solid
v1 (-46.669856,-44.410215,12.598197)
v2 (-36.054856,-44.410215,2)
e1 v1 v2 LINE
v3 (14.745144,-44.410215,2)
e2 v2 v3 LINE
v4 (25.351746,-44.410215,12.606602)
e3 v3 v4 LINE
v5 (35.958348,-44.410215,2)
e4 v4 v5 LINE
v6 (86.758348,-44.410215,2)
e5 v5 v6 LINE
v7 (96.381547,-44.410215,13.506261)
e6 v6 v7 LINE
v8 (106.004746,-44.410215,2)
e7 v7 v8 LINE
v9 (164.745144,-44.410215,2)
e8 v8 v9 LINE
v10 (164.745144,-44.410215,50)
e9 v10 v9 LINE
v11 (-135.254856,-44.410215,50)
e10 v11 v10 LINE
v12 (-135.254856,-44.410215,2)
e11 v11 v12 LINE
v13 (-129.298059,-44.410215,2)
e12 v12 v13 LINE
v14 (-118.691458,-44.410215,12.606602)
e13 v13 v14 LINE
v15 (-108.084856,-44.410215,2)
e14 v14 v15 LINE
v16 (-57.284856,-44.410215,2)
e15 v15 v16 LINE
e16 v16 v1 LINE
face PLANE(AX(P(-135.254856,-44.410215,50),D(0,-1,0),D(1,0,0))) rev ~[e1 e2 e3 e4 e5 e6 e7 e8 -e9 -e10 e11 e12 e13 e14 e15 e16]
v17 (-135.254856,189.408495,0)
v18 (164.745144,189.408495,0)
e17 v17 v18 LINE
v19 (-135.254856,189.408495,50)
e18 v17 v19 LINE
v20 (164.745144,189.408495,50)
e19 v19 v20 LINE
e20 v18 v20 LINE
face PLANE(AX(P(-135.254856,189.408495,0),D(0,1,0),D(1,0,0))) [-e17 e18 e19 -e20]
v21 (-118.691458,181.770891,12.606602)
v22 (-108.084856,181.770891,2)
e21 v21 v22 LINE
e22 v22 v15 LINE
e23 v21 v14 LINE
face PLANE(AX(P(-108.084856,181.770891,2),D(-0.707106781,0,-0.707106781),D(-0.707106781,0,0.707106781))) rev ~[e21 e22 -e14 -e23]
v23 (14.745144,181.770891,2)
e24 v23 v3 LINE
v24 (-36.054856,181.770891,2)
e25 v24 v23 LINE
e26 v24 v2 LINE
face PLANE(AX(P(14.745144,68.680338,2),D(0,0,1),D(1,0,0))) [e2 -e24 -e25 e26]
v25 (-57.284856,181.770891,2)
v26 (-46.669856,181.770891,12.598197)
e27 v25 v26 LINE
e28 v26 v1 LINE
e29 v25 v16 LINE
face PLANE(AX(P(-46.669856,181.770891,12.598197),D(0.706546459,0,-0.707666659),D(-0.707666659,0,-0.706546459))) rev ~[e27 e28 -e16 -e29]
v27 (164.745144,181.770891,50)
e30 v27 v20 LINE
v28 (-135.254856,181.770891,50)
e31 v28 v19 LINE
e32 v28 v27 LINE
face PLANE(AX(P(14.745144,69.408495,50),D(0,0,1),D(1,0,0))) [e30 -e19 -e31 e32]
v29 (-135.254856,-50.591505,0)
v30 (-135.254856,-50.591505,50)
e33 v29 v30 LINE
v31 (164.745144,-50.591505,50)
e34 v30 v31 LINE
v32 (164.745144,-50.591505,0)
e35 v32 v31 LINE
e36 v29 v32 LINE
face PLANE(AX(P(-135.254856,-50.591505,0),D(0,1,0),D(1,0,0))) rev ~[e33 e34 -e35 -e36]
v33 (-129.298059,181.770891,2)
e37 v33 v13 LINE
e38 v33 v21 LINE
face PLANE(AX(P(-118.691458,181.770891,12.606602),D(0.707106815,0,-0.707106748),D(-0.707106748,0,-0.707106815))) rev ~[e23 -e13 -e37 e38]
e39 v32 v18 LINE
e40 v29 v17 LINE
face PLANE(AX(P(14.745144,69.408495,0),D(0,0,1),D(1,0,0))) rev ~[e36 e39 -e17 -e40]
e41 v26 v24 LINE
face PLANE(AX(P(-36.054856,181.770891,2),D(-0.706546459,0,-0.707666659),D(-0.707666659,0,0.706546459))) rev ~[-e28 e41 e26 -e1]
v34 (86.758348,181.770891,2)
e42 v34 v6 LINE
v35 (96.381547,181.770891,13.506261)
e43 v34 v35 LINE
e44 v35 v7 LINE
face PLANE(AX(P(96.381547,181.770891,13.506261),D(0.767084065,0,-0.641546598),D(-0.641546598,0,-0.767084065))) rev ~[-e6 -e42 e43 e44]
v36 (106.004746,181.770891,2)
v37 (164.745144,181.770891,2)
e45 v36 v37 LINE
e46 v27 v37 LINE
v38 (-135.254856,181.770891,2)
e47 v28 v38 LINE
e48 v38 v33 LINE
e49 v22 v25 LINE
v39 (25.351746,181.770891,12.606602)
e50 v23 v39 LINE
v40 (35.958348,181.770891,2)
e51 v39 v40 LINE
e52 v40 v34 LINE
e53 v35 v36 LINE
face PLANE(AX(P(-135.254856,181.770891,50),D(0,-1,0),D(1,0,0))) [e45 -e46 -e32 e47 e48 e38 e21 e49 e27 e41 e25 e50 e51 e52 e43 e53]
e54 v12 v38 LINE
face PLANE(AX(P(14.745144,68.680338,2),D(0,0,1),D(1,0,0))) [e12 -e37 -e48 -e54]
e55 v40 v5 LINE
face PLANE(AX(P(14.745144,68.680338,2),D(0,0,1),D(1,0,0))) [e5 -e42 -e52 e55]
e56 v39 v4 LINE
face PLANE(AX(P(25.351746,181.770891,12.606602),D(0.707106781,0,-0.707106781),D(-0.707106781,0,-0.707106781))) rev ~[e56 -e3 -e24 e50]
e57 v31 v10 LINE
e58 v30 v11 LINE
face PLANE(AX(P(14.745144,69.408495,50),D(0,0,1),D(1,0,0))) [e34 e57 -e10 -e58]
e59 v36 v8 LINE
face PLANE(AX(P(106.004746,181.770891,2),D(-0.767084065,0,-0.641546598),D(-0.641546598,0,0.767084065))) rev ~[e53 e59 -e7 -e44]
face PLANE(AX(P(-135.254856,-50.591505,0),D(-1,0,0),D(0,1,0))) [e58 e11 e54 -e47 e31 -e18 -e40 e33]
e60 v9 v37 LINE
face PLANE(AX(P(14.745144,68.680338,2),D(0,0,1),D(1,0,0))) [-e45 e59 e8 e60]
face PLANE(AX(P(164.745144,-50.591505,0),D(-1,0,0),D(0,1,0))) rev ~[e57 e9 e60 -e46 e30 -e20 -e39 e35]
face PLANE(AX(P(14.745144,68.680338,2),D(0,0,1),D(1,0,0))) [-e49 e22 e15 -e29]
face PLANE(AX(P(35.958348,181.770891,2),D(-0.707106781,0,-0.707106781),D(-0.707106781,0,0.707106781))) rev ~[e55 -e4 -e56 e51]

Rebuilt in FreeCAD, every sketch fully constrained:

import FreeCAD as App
import Part
import Sketcher
from FreeCAD import Vector
Q = App.Units.Quantity


def add_polygon(sketch, points):
    """Adds a closed chain of lines whose ends are joined by coincident constraints."""
    first, n = sketch.GeometryCount, len(points)
    for a, b in zip(points, points[1:] + points[:1]):
        sketch.addGeometry(Part.LineSegment(App.Vector(*a, 0), App.Vector(*b, 0)), False)
    for i in range(n):
        sketch.addConstraint(Sketcher.Constraint("Coincident", first + i, 2, first + (i + 1) % n, 1))

doc = App.newDocument("Part")
body = doc.addObject("PartDesign::Body", "Body")

sketch1 = body.newObject("Sketcher::SketchObject", "Sketch")
sketch1.AttachmentSupport = (doc.getObject("XY_Plane"), [""])
sketch1.MapMode = "FlatFace"
add_polygon(sketch1, [(-135, 189), (-135, -51), (165, -51), (165, 189)])
sketch1.addConstraint([
    Sketcher.Constraint("Vertical", 0),
    Sketcher.Constraint("Horizontal", 1),
    Sketcher.Constraint("Vertical", 2),
    Sketcher.Constraint("Horizontal", 3),
    Sketcher.Constraint("DistanceX", 1, 1, 1, 2, Q("300 mm")),
    Sketcher.Constraint("DistanceY", 0, 2, 0, 1, Q("240 mm")),
    Sketcher.Constraint("DistanceX", 0, 2, -1, 1, Q("135.254856 mm")),
    Sketcher.Constraint("DistanceY", 0, 2, -1, 1, Q("50.591505 mm")),
])
pad1 = body.newObject("PartDesign::Pad", "Pad")
pad1.Profile = sketch1
pad1.Length = 50

sketch2 = body.newObject("Sketcher::SketchObject", "Sketch001")
sketch2.AttachmentSupport = (doc.getObject("XY_Plane"), [""])
sketch2.MapMode = "FlatFace"
sketch2.AttachmentOffset = App.Placement(Vector(0, 0, 50), App.Rotation())
add_polygon(sketch2, [(-135, 182), (-135, -44), (165, -44), (165, 182)])
sketch2.addConstraint([
    Sketcher.Constraint("Vertical", 0),
    Sketcher.Constraint("Horizontal", 1),
    Sketcher.Constraint("Vertical", 2),
    Sketcher.Constraint("Horizontal", 3),
    Sketcher.Constraint("DistanceX", 1, 1, 1, 2, Q("300 mm")),
    Sketcher.Constraint("DistanceY", 0, 2, 0, 1, Q("226.181105 mm")),
    Sketcher.Constraint("DistanceY", -1, 1, 2, 2, Q("181.770891 mm")),
    Sketcher.Constraint("DistanceX", 0, 2, -1, 1, Q("135.254856 mm")),
])
pocket1 = body.newObject("PartDesign::Pocket", "Pocket")
pocket1.Profile = sketch2
pocket1.Length = 48

sketch3 = body.newObject("Sketcher::SketchObject", "Sketch002")
sketch3.AttachmentSupport = (doc.getObject("XZ_Plane"), [""])
sketch3.MapMode = "FlatFace"
sketch3.AttachmentOffset = App.Placement(Vector(0, 0, -181.770891), App.Rotation())
add_polygon(sketch3, [(-119, 13), (-129, 2), (-108, 2)])
add_polygon(sketch3, [(15, 2), (36, 2), (25, 13)])
add_polygon(sketch3, [(87, 2), (106, 2), (96, 14)])
add_polygon(sketch3, [(-57, 2), (-36, 2), (-47, 13)])
sketch3.addConstraint([
    Sketcher.Constraint("Horizontal", 1),
    Sketcher.Constraint("Horizontal", 3),
    Sketcher.Constraint("Horizontal", 6),
    Sketcher.Constraint("Horizontal", 9),
    Sketcher.Constraint("Perpendicular", 0, 2),
    Sketcher.Constraint("Parallel", 2, 4),
    Sketcher.Constraint("Perpendicular", 4, 5),
    Sketcher.Constraint("Horizontal", 1, 2, 3, 2),
    Sketcher.Constraint("Horizontal", 2, 2, 4, 2),
    Sketcher.Constraint("Horizontal", 5, 2, 6, 2),
    Sketcher.Constraint("Horizontal", 8, 2, 9, 2),
    Sketcher.Constraint("Equal", 0, 2),
    Sketcher.Constraint("Equal", 5, 7),
    Sketcher.Constraint("Equal", 7, 8),
    Sketcher.Constraint("Equal", 8, 10),
    Sketcher.Constraint("Equal", 10, 11),
    Sketcher.Constraint("Distance", 0, Q("15 mm")),
    Sketcher.Constraint("DistanceY", -1, 1, 0, 2, Q("2 mm")),
    Sketcher.Constraint("DistanceX", 9, 1, 9, 2, Q("21.23 mm")),
    Sketcher.Constraint("DistanceX", 3, 2, 8, 2, Q("50.8 mm")),
    Sketcher.Constraint("DistanceX", 9, 2, 5, 2, Q("50.8 mm")),
    Sketcher.Constraint("DistanceX", 1, 2, 11, 2, Q("50.8 mm")),
    Sketcher.Constraint("DistanceX", 4, 2, 6, 2, Q("80.653 mm")),
    Sketcher.Constraint("DistanceX", 0, 2, -1, 1, Q("129.298059 mm")),
])
pad2 = body.newObject("PartDesign::Pad", "Pad001")
pad2.Profile = sketch3
pad2.Length = 228.9

doc.recompute()
